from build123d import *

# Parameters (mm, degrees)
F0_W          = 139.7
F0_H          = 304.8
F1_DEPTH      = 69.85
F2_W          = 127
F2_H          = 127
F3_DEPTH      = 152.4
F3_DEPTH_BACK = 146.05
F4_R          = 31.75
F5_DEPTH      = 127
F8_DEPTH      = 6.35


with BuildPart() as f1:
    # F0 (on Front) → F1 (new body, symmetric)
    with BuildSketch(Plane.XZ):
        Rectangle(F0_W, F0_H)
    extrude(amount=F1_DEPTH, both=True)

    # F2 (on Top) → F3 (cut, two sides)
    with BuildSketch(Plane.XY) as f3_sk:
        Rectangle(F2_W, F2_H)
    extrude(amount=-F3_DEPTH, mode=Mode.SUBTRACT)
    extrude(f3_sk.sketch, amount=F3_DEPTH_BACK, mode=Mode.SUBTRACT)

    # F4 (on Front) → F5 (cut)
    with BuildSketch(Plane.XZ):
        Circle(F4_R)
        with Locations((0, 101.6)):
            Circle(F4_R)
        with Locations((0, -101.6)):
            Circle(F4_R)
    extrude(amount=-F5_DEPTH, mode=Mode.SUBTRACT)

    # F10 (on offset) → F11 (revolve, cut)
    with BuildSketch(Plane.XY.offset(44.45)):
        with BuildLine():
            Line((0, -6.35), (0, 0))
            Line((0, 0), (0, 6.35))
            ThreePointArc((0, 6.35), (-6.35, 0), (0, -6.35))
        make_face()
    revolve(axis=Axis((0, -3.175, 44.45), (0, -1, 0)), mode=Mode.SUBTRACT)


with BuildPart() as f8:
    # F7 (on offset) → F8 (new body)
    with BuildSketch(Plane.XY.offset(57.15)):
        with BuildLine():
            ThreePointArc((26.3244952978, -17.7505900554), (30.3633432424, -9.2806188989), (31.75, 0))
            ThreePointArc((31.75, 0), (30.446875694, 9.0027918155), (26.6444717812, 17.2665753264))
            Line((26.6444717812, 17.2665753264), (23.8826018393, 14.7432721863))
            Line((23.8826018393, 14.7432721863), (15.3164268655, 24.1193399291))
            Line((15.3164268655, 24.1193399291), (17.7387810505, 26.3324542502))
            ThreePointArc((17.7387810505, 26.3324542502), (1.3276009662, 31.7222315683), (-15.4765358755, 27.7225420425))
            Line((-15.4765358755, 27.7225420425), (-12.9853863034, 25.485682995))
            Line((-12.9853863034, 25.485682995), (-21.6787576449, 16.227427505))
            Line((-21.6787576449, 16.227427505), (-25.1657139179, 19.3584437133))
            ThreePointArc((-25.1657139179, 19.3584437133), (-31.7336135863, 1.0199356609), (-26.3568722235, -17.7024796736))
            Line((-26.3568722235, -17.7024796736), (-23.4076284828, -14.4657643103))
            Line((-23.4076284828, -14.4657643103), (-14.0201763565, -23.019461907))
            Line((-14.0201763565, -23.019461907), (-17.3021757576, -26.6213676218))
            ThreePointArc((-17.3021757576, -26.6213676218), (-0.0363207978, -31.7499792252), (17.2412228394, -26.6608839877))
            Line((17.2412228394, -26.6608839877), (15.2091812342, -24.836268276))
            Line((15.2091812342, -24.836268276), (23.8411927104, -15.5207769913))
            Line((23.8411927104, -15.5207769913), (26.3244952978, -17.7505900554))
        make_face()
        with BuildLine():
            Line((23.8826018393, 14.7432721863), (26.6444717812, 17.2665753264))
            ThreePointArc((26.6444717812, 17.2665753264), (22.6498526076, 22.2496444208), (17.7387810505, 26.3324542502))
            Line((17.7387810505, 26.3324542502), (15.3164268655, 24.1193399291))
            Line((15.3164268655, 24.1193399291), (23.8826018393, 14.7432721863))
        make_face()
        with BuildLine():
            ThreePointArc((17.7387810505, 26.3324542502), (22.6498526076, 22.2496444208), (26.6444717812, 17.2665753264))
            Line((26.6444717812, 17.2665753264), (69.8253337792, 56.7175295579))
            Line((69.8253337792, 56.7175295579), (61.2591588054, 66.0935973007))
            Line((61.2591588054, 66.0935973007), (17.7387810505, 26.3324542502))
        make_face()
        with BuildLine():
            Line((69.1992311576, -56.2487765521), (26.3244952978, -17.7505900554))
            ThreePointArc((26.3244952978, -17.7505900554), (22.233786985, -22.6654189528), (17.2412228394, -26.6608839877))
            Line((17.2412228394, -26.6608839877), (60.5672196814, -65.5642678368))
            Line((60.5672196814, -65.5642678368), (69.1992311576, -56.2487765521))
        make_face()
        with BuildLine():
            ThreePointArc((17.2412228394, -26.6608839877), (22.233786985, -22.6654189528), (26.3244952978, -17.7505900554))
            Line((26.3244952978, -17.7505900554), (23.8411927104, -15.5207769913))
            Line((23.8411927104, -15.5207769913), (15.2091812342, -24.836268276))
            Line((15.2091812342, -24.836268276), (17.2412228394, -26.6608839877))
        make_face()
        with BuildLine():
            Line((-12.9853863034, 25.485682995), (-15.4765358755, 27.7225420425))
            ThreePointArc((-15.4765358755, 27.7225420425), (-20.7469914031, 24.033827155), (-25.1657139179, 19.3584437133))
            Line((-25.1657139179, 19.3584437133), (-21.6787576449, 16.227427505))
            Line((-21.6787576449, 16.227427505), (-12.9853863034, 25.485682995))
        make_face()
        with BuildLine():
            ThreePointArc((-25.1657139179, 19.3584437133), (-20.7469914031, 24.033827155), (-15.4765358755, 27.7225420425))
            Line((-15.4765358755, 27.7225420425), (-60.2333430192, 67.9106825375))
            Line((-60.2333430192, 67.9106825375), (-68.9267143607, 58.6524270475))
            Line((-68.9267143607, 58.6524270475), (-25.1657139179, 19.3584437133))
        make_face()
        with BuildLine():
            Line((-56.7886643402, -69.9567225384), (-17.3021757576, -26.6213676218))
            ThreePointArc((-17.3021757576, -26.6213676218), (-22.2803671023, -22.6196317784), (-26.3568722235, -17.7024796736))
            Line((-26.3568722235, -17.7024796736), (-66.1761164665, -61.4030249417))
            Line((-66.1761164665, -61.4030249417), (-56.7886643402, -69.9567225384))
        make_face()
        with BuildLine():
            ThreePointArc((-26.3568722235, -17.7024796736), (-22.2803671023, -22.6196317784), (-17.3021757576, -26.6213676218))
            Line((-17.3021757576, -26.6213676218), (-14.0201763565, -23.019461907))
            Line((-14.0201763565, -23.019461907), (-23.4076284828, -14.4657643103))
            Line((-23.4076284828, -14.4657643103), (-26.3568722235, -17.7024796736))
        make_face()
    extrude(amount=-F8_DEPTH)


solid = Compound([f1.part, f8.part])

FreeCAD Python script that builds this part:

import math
import FreeCAD as App
import Part
import Sketcher
from FreeCAD import Vector
Q = App.Units.Quantity

doc = App.newDocument("Part")
body = doc.addObject("PartDesign::Body", "Body")

sketch1 = body.newObject("Sketcher::SketchObject", "Sketch")
sketch1.AttachmentSupport = (doc.getObject("XZ_Plane"), [""])
sketch1.MapMode = "FlatFace"
sketch1.addGeometry(Part.LineSegment(Vector(-70, 152, 0), Vector(-70, -152, 0)), False)
sketch1.addGeometry(Part.LineSegment(Vector(-70, -152, 0), Vector(70, -152, 0)), False)
sketch1.addGeometry(Part.LineSegment(Vector(70, -152, 0), Vector(70, 152, 0)), False)
sketch1.addGeometry(Part.LineSegment(Vector(70, 152, 0), Vector(-70, 152, 0)), False)
sketch1.addConstraint(Sketcher.Constraint("Coincident", 0, 2, 1, 1))
sketch1.addConstraint(Sketcher.Constraint("Coincident", 1, 2, 2, 1))
sketch1.addConstraint(Sketcher.Constraint("Coincident", 2, 2, 3, 1))
sketch1.addConstraint(Sketcher.Constraint("Coincident", 3, 2, 0, 1))
sketch1.addConstraint(Sketcher.Constraint("Vertical", 0))
sketch1.addConstraint(Sketcher.Constraint("Horizontal", 1))
sketch1.addConstraint(Sketcher.Constraint("Vertical", 2))
sketch1.addConstraint(Sketcher.Constraint("Horizontal", 3))
sketch1.addConstraint(Sketcher.Constraint("Symmetric", 0, 2, 2, 2, -1, 1))
sketch1.addConstraint(Sketcher.Constraint("DistanceY", 0, 2, 0, 1, Q("12 in")))
sketch1.addConstraint(Sketcher.Constraint("DistanceX", 1, 1, 1, 2, Q("5.5 in")))
pad1 = body.newObject("PartDesign::Pad", "Pad")
pad1.Profile = sketch1
pad1.Length = Q("5.5 in")
pad1.Midplane = True

sketch2 = body.newObject("Sketcher::SketchObject", "Sketch001")
sketch2.AttachmentSupport = (doc.getObject("XY_Plane"), [""])
sketch2.MapMode = "FlatFace"
sketch2.addGeometry(Part.LineSegment(Vector(-64, 64, 0), Vector(-64, -64, 0)), False)
sketch2.addGeometry(Part.LineSegment(Vector(-64, -64, 0), Vector(64, -64, 0)), False)
sketch2.addGeometry(Part.LineSegment(Vector(64, -64, 0), Vector(64, 64, 0)), False)
sketch2.addGeometry(Part.LineSegment(Vector(64, 64, 0), Vector(-64, 64, 0)), False)
sketch2.addConstraint(Sketcher.Constraint("Coincident", 0, 2, 1, 1))
sketch2.addConstraint(Sketcher.Constraint("Coincident", 1, 2, 2, 1))
sketch2.addConstraint(Sketcher.Constraint("Coincident", 2, 2, 3, 1))
sketch2.addConstraint(Sketcher.Constraint("Coincident", 3, 2, 0, 1))
sketch2.addConstraint(Sketcher.Constraint("Vertical", 0))
sketch2.addConstraint(Sketcher.Constraint("Horizontal", 1))
sketch2.addConstraint(Sketcher.Constraint("Vertical", 2))
sketch2.addConstraint(Sketcher.Constraint("Horizontal", 3))
sketch2.addConstraint(Sketcher.Constraint("Symmetric", 0, 2, 2, 2, -1, 1))
sketch2.addConstraint(Sketcher.Constraint("Equal", 3, 0))
sketch2.addConstraint(Sketcher.Constraint("DistanceX", 1, 1, 1, 2, Q("5 in")))
pocket1 = body.newObject("PartDesign::Pocket", "Pocket")
pocket1.Profile = sketch2
pocket1.Type = "TwoLengths"
pocket1.Length = Q("6 in")
pocket1.Length2 = Q("5.75 in")

sketch3 = body.newObject("Sketcher::SketchObject", "Sketch002")
sketch3.AttachmentSupport = (doc.getObject("XZ_Plane"), [""])
sketch3.MapMode = "FlatFace"
sketch3.addGeometry(Part.Circle(Vector(0, 0, 0), Vector(0, 0, 1), 32), False)
sketch3.addGeometry(Part.Circle(Vector(0, 102, 0), Vector(0, 0, 1), 32), False)
sketch3.addGeometry(Part.Circle(Vector(0, -102, 0), Vector(0, 0, 1), 32), False)
sketch3.addConstraint(Sketcher.Constraint("Coincident", 0, 3, -1, 1))
sketch3.addConstraint(Sketcher.Constraint("Equal", 0, 1))
sketch3.addConstraint(Sketcher.Constraint("Equal", 1, 2))
sketch3.addConstraint(Sketcher.Constraint("Symmetric", 1, 3, 2, 3, -1, 1))
sketch3.addConstraint(Sketcher.Constraint("PointOnObject", 1, 3, -2))
sketch3.addConstraint(Sketcher.Constraint("Diameter", 0, Q("2.5 in")))
sketch3.addConstraint(Sketcher.Constraint("DistanceY", -1, 1, 1, 3, Q("4 in")))
pocket2 = body.newObject("PartDesign::Pocket", "Pocket001")
pocket2.Profile = sketch3
pocket2.Length = Q("5 in")

sketch4 = body.newObject("Sketcher::SketchObject", "Sketch003")
sketch4.AttachmentSupport = (doc.getObject("XY_Plane"), [""])
sketch4.MapMode = "FlatFace"
sketch4.AttachmentOffset = App.Placement(Vector(0, 0, 1.75 * 25.4), App.Rotation())
sketch4.addGeometry(Part.LineSegment(Vector(0, -6, 0), Vector(0, 6, 0)), False)
sketch4.addGeometry(Part.ArcOfCircle(Part.Circle(Vector(0, 0, 0), Vector(0, 0, 1), 6), math.radians(90), math.radians(270)), False)
sketch4.addConstraint(Sketcher.Constraint("Coincident", 0, 1, 1, 2))
sketch4.addConstraint(Sketcher.Constraint("Coincident", 1, 1, 0, 2))
sketch4.addConstraint(Sketcher.Constraint("Vertical", 0))
sketch4.addConstraint(Sketcher.Constraint("Coincident", 1, 3, -1, 1))
sketch4.addConstraint(Sketcher.Constraint("PointOnObject", 0, 1, -2))
sketch4.addConstraint(Sketcher.Constraint("Radius", 1, Q("0.25 in")))
groove = body.newObject("PartDesign::Groove", "Groove")
groove.Profile = sketch4
groove.ReferenceAxis = (sketch4, ["V_Axis"])
groove.Angle = 360
body2 = doc.addObject("PartDesign::Body", "Body001")

sketch5 = body2.newObject("Sketcher::SketchObject", "Sketch004")
sketch5.AttachmentSupport = (doc.getObject("XY_Plane001"), [""])
sketch5.MapMode = "FlatFace"
sketch5.AttachmentOffset = App.Placement(Vector(0, 0, 2.25 * 25.4), App.Rotation())
sketch5.addGeometry(Part.ArcOfCircle(Part.Circle(Vector(0, 0, 0), Vector(0, 0, 1), 31.75), math.radians(-33.991762), math.radians(0)), False)
sketch5.addGeometry(Part.ArcOfCircle(Part.Circle(Vector(0, 0, 0), Vector(0, 0, 1), 31.75), math.radians(0), math.radians(32.944688)), False)
sketch5.addGeometry(Part.LineSegment(Vector(26.644472, 17.266575, 0), Vector(69.825334, 56.71753, 0)), False)
sketch5.addGeometry(Part.LineSegment(Vector(69.825334, 56.71753, 0), Vector(61.259159, 66.093597, 0)), False)
sketch5.addGeometry(Part.LineSegment(Vector(61.259159, 66.093597, 0), Vector(17.738781, 26.332454, 0)), False)
sketch5.addGeometry(Part.ArcOfCircle(Part.Circle(Vector(0, 0, 0), Vector(0, 0, 1), 31.75), math.radians(56.033936), math.radians(119.173111)), False)
sketch5.addGeometry(Part.LineSegment(Vector(-15.476536, 27.722542, 0), Vector(-60.233343, 67.910683, 0)), False)
sketch5.addGeometry(Part.LineSegment(Vector(-60.233343, 67.910683, 0), Vector(-68.926714, 58.652427, 0)), False)
sketch5.addGeometry(Part.LineSegment(Vector(-68.926714, 58.652427, 0), Vector(-25.165714, 19.358444, 0)), False)
sketch5.addGeometry(Part.ArcOfCircle(Part.Circle(Vector(0, 0, 0), Vector(0, 0, 1), 31.75), math.radians(142.431119), math.radians(213.887113)), False)
sketch5.addGeometry(Part.LineSegment(Vector(-26.356872, -17.70248, 0), Vector(-66.176116, -61.403025, 0)), False)
sketch5.addGeometry(Part.LineSegment(Vector(-66.176116, -61.403025, 0), Vector(-56.788664, -69.956723, 0)), False)
sketch5.addGeometry(Part.LineSegment(Vector(-56.788664, -69.956723, 0), Vector(-17.302176, -26.621368, 0)), False)
sketch5.addGeometry(Part.ArcOfCircle(Part.Circle(Vector(0, 0, 0), Vector(0, 0, 1), 31.75), math.radians(-123.021275), math.radians(-57.109813)), False)
sketch5.addGeometry(Part.LineSegment(Vector(17.241223, -26.660884, 0), Vector(60.56722, -65.564268, 0)), False)
sketch5.addGeometry(Part.LineSegment(Vector(60.56722, -65.564268, 0), Vector(69.199231, -56.248777, 0)), False)
sketch5.addGeometry(Part.LineSegment(Vector(69.199231, -56.248777, 0), Vector(26.324495, -17.75059, 0)), False)
sketch5.addConstraint(Sketcher.Constraint("Coincident", 0, 2, 1, 1))
sketch5.addConstraint(Sketcher.Constraint("Coincident", 1, 2, 2, 1))
sketch5.addConstraint(Sketcher.Constraint("Coincident", 2, 2, 3, 1))
sketch5.addConstraint(Sketcher.Constraint("Coincident", 3, 2, 4, 1))
sketch5.addConstraint(Sketcher.Constraint("Coincident", 4, 2, 5, 1))
sketch5.addConstraint(Sketcher.Constraint("Coincident", 5, 2, 6, 1))
sketch5.addConstraint(Sketcher.Constraint("Coincident", 6, 2, 7, 1))
sketch5.addConstraint(Sketcher.Constraint("Coincident", 7, 2, 8, 1))
sketch5.addConstraint(Sketcher.Constraint("Coincident", 8, 2, 9, 1))
sketch5.addConstraint(Sketcher.Constraint("Coincident", 9, 2, 10, 1))
sketch5.addConstraint(Sketcher.Constraint("Coincident", 10, 2, 11, 1))
sketch5.addConstraint(Sketcher.Constraint("Coincident", 11, 2, 12, 1))
sketch5.addConstraint(Sketcher.Constraint("Coincident", 12, 2, 13, 1))
sketch5.addConstraint(Sketcher.Constraint("Coincident", 13, 2, 14, 1))
sketch5.addConstraint(Sketcher.Constraint("Coincident", 14, 2, 15, 1))
sketch5.addConstraint(Sketcher.Constraint("Coincident", 15, 2, 16, 1))
sketch5.addConstraint(Sketcher.Constraint("Coincident", 16, 2, 0, 1))
sketch5.addConstraint(Sketcher.Constraint("Coincident", 0, 3, -1, 1))
sketch5.addConstraint(Sketcher.Constraint("Coincident", 1, 3, -1, 1))
sketch5.addConstraint(Sketcher.Constraint("Coincident", 5, 3, -1, 1))
sketch5.addConstraint(Sketcher.Constraint("Coincident", 9, 3, -1, 1))
sketch5.addConstraint(Sketcher.Constraint("Coincident", 13, 3, -1, 1))
sketch5.addConstraint(Sketcher.Constraint("PointOnObject", 0, 2, -1))
sketch5.addConstraint(Sketcher.Constraint("Radius", 0, Q("1.25 in")))
sketch5.addConstraint(Sketcher.Constraint("Radius", 5, Q("1.25 in")))
sketch5.addConstraint(Sketcher.Constraint("Radius", 9, Q("1.25 in")))
sketch5.addConstraint(Sketcher.Constraint("Radius", 13, Q("1.25 in")))
sketch5.addConstraint(Sketcher.Constraint("Distance", 3, Q("0.5 in")))
sketch5.addConstraint(Sketcher.Constraint("Distance", 7, Q("0.5 in")))
sketch5.addConstraint(Sketcher.Constraint("Distance", 11, Q("0.5 in")))
sketch5.addConstraint(Sketcher.Constraint("Distance", 15, Q("0.5 in")))
sketch5.addConstraint(Sketcher.Constraint("DistanceY", 8, 2, 5, 2, 8.364098))
sketch5.addConstraint(Sketcher.Constraint("DistanceY", 14, 2, 12, 2, 38.9429))
sketch5.addConstraint(Sketcher.Constraint("Distance", 4, 58.948891))
sketch5.addConstraint(Sketcher.Constraint("Distance", 6, 60.151961))
sketch5.addConstraint(Sketcher.Constraint("Distance", 12, 58.627091))
sketch5.addConstraint(Sketcher.Constraint("Distance", 14, 58.22899))
sketch5.addConstraint(Sketcher.Constraint("DistanceX", -1, 1, 1, 2, 26.644472))
sketch5.addConstraint(Sketcher.Constraint("DistanceY", -1, 1, 2, 2, 56.71753))
sketch5.addConstraint(Sketcher.Constraint("DistanceX", -1, 1, 3, 2, 61.259159))
sketch5.addConstraint(Sketcher.Constraint("DistanceX", -1, 1, 4, 2, 17.738781))
sketch5.addConstraint(Sketcher.Constraint("DistanceY", 9, 2, -1, 1, 17.70248))
sketch5.addConstraint(Sketcher.Constraint("DistanceX", -1, 1, 14, 2, 60.56722))
sketch5.addConstraint(Sketcher.Constraint("DistanceX", -1, 1, 15, 2, 69.199231))
sketch5.addConstraint(Sketcher.Constraint("DistanceY", 16, 2, -1, 1, 17.75059))
sketch5.addConstraint(Sketcher.Constraint("DistanceY", 5, 2, 6, 2, 40.18814))
sketch5.addConstraint(Sketcher.Constraint("DistanceY", 4, 2, 6, 2, 41.578228))
sketch5.addConstraint(Sketcher.Constraint("DistanceX", 7, 2, 6, 2, 8.693371))
sketch5.addConstraint(Sketcher.Constraint("DistanceX", 13, 2, 15, 2, 51.958008))
sketch5.addConstraint(Sketcher.Constraint("Distance", 10, 59.121146))
sketch5.addConstraint(Sketcher.Constraint("DistanceX", 10, 2, -1, 1, 66.176116))
pad2 = body2.newObject("PartDesign::Pad", "Pad001")
pad2.Profile = sketch5
pad2.Length = Q("0.25 in")
pad2.Reversed = True

doc.recompute()
